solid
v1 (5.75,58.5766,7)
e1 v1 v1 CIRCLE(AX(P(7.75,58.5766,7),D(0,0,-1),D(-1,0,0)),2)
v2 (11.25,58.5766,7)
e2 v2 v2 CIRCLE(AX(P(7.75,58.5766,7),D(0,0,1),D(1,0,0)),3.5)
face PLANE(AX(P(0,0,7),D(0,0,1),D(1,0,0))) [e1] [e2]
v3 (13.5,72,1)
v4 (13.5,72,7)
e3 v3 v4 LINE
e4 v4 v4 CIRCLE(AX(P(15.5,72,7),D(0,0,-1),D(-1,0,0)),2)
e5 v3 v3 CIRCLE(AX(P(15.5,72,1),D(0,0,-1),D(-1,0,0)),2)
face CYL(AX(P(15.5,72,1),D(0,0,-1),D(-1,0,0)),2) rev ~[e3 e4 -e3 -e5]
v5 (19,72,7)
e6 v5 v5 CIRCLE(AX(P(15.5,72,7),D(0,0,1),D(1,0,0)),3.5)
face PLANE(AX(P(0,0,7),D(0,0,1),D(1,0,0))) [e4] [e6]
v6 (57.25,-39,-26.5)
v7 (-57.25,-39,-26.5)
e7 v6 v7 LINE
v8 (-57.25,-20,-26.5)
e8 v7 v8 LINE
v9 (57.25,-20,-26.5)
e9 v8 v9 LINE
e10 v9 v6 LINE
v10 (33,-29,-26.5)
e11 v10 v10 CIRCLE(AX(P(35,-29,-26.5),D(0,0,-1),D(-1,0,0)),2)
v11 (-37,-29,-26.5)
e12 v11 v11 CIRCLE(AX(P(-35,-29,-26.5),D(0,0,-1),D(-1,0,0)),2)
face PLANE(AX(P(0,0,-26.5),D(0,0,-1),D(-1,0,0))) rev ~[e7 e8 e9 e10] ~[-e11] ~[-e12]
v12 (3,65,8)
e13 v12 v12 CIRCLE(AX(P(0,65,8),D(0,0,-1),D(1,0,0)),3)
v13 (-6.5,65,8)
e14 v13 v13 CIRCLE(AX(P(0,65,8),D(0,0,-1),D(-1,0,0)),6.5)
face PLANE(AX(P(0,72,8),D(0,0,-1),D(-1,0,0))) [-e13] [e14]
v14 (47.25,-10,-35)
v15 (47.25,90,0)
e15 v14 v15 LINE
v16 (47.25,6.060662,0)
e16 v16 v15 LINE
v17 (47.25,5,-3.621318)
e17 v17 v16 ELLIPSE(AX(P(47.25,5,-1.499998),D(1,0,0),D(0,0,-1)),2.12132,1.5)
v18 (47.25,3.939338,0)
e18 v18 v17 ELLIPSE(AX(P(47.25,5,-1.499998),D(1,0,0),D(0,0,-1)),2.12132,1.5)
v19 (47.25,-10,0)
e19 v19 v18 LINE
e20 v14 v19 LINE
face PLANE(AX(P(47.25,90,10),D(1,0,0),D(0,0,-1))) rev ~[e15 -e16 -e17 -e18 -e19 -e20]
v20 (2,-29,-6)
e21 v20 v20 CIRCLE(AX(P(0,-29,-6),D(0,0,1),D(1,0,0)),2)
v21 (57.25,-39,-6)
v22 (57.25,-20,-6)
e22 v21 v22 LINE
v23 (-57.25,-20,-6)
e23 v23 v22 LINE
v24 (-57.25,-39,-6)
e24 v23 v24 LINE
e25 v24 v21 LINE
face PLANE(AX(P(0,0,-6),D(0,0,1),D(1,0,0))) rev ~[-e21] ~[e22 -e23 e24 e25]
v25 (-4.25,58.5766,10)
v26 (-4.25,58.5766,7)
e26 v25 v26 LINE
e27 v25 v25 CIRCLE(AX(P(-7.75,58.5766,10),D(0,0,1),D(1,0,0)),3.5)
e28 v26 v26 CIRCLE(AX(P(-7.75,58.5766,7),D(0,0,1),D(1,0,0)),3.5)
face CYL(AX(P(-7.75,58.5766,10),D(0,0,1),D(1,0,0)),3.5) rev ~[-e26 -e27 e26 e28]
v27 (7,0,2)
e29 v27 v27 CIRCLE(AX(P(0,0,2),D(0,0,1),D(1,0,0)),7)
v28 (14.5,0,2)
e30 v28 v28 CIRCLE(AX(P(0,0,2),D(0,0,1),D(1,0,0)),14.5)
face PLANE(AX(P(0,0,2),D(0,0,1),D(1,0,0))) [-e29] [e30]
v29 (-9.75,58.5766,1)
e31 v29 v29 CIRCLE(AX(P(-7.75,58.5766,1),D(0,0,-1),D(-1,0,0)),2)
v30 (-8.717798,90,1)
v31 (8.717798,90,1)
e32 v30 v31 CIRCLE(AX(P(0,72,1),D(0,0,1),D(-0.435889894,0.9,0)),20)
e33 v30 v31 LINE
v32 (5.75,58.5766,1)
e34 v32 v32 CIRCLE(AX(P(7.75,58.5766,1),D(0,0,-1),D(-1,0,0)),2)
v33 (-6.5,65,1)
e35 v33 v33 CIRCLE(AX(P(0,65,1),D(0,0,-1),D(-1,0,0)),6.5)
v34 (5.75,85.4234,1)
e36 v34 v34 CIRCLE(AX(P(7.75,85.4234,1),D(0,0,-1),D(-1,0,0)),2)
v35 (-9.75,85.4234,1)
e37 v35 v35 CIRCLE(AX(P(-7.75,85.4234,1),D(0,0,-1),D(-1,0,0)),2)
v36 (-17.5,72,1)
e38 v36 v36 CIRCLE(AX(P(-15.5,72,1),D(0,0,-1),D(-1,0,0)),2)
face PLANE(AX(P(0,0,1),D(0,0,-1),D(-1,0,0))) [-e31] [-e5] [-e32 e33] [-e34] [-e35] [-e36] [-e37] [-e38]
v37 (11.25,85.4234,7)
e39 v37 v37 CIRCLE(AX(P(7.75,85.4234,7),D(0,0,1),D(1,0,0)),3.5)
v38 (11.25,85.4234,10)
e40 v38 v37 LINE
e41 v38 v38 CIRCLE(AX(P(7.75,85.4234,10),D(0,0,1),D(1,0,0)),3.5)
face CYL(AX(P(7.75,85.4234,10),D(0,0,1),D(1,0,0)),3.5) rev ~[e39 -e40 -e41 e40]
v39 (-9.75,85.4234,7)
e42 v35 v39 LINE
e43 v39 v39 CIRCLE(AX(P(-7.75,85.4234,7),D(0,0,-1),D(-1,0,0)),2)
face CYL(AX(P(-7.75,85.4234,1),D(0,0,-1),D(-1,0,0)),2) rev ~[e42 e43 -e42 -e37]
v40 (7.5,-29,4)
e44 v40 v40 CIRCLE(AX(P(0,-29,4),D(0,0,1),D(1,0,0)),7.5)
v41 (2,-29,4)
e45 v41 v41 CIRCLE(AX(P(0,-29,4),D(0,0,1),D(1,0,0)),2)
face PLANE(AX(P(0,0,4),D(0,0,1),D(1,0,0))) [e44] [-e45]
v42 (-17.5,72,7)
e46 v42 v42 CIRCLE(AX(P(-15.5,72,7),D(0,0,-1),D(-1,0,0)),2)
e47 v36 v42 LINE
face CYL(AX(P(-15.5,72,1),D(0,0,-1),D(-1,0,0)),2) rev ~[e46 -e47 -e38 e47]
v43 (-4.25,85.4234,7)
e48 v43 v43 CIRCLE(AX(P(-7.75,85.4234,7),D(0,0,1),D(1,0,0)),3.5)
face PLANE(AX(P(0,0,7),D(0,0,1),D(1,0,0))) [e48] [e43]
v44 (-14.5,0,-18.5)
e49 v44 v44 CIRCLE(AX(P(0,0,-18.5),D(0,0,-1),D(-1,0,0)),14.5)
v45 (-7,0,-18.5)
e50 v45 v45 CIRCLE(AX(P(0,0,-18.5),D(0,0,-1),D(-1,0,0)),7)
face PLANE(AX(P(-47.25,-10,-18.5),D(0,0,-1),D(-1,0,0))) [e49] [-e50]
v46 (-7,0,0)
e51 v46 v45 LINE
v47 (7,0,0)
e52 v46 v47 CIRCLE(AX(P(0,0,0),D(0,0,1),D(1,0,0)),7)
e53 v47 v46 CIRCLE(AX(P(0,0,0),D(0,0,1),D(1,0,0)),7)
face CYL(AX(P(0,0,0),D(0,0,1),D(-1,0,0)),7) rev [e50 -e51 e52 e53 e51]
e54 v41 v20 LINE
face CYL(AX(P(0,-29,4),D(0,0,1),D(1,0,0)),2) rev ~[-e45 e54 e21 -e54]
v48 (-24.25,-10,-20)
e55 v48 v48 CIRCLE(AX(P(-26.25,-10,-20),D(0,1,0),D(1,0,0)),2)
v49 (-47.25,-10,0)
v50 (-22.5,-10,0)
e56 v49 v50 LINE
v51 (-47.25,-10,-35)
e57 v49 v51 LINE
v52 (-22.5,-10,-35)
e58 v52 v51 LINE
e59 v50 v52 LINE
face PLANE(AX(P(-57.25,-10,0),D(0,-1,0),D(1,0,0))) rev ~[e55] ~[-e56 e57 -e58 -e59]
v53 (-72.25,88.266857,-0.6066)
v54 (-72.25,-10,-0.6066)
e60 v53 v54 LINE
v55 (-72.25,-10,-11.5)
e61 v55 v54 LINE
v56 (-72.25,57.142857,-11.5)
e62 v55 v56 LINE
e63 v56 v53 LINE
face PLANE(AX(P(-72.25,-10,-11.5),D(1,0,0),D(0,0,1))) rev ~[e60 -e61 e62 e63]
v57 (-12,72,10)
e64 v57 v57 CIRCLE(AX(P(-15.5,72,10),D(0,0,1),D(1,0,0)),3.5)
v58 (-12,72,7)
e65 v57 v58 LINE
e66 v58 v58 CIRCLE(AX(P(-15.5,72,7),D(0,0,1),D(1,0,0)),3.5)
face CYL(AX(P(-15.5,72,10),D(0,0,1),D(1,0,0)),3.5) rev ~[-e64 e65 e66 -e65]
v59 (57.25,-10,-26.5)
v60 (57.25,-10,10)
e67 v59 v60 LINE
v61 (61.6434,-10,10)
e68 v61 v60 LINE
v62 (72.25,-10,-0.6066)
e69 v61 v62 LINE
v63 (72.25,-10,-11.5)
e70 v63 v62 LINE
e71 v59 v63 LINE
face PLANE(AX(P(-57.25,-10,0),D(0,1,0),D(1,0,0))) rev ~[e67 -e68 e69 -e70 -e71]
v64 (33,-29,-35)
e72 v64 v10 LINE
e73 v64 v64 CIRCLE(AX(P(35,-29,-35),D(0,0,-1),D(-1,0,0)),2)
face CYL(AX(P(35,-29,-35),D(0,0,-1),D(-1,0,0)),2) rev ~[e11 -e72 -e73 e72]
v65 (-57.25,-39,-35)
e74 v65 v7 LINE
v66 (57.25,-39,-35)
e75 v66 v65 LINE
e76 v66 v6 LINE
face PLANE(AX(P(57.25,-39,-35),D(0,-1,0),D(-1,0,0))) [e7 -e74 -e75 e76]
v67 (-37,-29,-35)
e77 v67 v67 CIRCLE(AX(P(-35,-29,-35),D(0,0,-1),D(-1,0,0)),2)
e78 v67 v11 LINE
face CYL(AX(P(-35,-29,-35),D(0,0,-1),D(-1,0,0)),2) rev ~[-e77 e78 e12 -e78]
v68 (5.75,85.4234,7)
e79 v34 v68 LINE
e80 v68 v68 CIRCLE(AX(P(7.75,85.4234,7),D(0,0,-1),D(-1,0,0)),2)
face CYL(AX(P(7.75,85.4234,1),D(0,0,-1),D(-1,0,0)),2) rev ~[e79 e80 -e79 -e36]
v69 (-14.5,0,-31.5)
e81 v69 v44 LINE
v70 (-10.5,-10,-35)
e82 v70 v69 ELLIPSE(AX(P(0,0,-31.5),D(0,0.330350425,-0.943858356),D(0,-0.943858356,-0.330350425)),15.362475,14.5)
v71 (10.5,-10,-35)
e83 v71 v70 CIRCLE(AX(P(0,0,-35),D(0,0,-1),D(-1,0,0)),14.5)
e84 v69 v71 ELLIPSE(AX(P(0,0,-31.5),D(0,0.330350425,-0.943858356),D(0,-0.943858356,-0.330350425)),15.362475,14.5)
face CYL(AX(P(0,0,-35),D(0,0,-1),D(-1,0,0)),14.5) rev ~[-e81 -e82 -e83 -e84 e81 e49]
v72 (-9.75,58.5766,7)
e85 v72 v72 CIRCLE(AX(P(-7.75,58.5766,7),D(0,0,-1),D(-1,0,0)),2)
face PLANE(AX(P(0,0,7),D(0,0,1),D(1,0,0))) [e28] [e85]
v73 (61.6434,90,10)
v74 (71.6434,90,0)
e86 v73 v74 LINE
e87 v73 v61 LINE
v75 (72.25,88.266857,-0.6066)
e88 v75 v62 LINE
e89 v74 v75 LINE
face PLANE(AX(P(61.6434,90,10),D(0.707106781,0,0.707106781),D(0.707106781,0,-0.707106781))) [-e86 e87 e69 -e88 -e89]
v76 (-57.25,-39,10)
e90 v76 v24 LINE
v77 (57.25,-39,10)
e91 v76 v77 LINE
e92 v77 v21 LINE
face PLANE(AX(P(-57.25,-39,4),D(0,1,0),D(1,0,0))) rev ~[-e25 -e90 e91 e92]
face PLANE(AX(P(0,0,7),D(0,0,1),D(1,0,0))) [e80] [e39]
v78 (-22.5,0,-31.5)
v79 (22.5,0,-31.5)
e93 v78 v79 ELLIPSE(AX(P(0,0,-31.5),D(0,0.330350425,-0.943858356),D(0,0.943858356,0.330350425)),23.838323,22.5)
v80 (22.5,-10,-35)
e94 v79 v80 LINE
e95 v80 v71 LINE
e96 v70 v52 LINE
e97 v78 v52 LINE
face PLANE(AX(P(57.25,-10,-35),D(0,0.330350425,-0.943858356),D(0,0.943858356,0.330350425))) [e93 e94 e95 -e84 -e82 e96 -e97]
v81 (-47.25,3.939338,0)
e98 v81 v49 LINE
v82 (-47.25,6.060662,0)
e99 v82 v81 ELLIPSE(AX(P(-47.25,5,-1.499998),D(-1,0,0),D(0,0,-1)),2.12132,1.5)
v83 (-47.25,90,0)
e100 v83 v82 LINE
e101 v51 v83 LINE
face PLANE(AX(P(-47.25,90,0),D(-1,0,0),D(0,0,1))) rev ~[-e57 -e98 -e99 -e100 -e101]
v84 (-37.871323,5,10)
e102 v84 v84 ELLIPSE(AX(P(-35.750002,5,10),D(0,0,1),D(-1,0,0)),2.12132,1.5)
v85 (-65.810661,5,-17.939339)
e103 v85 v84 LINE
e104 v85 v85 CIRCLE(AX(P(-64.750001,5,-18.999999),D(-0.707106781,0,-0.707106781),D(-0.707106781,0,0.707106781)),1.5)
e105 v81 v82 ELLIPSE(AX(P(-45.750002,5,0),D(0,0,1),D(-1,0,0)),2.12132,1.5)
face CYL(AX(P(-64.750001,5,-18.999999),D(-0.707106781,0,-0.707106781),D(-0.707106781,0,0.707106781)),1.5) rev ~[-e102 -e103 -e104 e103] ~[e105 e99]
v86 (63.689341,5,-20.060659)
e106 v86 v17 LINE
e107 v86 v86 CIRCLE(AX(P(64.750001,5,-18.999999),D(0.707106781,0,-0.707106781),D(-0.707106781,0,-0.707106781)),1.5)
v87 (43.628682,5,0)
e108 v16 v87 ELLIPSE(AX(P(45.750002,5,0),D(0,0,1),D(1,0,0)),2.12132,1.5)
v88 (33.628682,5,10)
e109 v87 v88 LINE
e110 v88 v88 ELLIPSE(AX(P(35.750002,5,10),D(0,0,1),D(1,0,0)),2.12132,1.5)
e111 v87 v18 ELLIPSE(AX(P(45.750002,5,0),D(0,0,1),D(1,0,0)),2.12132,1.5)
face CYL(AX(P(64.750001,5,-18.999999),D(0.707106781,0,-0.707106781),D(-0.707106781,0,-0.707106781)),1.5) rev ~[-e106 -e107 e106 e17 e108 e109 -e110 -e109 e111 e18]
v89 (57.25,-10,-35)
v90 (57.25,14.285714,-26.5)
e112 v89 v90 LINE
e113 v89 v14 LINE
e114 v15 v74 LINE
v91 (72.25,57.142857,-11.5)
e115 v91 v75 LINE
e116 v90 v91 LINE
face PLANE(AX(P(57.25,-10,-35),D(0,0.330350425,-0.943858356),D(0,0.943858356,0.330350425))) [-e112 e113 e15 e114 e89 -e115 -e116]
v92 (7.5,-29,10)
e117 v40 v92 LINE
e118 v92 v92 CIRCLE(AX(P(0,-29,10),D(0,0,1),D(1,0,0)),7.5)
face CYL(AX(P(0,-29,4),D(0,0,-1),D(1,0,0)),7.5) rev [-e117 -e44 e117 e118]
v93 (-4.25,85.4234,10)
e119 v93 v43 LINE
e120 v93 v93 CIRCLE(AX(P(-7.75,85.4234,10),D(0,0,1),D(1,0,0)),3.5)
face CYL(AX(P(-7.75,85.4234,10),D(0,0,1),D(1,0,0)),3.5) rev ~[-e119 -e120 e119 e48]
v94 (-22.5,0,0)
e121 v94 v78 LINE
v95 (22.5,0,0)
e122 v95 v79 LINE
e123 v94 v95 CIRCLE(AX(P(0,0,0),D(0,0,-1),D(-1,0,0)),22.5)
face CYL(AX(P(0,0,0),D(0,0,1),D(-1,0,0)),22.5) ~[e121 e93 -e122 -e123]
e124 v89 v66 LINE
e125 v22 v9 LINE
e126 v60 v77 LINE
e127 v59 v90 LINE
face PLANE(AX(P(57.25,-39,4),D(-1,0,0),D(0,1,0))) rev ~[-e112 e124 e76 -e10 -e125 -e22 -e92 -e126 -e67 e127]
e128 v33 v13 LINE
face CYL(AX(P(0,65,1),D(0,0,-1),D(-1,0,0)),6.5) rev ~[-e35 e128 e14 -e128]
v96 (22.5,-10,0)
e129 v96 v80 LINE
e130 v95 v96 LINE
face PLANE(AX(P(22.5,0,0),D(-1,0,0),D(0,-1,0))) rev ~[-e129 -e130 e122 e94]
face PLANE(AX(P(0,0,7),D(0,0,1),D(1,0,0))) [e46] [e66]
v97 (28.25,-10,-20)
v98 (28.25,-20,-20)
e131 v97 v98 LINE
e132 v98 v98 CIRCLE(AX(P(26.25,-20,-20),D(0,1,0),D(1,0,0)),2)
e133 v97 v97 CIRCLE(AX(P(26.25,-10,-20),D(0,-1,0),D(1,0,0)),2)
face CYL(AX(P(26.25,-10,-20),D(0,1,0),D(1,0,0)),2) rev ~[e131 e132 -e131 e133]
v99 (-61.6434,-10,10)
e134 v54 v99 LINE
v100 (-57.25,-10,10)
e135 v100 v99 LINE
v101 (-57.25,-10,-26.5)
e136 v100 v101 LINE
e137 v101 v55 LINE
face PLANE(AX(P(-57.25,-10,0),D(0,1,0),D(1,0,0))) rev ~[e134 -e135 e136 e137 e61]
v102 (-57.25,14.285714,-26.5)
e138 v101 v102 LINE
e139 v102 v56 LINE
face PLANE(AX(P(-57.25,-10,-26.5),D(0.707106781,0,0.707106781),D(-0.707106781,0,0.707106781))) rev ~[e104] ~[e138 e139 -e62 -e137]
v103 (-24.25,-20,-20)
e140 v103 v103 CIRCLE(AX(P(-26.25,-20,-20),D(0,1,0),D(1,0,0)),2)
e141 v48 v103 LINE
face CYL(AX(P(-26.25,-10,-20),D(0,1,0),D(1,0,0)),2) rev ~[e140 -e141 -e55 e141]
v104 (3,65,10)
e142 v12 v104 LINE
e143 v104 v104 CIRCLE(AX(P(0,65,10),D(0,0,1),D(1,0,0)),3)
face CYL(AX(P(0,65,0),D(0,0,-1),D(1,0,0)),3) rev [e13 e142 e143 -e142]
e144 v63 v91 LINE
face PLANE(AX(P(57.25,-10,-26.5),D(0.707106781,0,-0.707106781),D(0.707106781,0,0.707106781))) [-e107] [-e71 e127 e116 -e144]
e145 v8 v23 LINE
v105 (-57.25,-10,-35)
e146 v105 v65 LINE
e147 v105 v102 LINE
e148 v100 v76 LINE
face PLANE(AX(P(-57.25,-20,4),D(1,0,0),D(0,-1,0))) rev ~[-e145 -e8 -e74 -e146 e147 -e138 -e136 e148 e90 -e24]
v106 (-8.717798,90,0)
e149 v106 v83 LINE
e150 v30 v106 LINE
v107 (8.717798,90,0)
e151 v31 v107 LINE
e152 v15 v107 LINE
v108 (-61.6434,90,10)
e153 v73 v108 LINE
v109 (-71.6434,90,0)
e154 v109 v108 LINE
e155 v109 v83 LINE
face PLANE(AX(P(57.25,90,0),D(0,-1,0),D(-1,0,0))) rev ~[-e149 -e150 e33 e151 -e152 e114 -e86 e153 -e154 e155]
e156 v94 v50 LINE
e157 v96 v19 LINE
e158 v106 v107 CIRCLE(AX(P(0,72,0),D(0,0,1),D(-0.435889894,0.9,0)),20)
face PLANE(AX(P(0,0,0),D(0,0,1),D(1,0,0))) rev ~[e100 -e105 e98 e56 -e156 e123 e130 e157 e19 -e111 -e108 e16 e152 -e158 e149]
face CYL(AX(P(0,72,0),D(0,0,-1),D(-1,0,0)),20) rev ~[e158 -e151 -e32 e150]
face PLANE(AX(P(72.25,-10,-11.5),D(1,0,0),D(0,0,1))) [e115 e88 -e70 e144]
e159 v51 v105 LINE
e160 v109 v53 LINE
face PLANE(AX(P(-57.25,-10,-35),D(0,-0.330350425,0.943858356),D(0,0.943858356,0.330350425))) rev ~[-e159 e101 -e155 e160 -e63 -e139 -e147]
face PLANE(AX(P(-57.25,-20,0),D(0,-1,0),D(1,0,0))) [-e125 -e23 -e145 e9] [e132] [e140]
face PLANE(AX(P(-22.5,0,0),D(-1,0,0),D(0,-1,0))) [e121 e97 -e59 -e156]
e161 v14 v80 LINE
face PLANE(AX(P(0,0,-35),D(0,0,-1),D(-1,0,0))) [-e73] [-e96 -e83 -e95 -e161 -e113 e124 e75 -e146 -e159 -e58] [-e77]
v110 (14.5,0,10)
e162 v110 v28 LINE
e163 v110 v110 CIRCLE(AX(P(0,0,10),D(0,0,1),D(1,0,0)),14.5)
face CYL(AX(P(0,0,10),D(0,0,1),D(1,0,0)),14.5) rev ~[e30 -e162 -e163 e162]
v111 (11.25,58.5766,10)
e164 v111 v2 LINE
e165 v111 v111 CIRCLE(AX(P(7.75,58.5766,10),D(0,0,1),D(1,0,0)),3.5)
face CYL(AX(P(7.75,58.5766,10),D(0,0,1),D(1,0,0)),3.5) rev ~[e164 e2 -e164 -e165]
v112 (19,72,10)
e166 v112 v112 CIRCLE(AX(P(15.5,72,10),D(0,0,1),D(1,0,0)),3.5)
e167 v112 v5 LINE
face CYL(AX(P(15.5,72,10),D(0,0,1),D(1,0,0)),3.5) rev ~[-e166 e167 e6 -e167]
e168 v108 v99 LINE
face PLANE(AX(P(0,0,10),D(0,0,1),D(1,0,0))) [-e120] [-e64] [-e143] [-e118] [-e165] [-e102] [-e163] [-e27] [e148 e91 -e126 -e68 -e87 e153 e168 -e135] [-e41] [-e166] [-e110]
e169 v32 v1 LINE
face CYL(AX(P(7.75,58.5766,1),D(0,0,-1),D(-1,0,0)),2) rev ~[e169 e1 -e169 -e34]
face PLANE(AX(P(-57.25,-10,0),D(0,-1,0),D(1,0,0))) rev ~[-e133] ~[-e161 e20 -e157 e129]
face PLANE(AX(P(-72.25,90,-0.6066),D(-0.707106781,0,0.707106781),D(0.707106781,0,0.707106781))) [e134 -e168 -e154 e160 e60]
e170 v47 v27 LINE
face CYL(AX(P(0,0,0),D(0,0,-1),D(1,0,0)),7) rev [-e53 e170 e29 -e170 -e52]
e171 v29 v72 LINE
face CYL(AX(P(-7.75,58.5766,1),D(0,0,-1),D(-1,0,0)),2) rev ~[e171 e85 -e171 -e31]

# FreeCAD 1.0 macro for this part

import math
import FreeCAD as App
import Part
import Sketcher
from FreeCAD import Vector
Q = App.Units.Quantity

doc = App.newDocument("Part")
body = doc.addObject("PartDesign::Body", "Body")

# Sketch on XY plane
sketch1 = doc.addObject("Sketcher::SketchObject", "Sketch")
body.addObject(sketch1)
sketch1.AttachmentSupport = (doc.XY_Plane, [""])
sketch1.MapMode = "FlatFace"
sketch1.addGeometry([
    Part.LineSegment(Vector(-57.2, 90, 0), Vector(-57.2, -10, 0)),  # 0
    Part.LineSegment(Vector(-57.2, -10, 0), Vector(57.2, -10, 0)),  # 1
    Part.LineSegment(Vector(57.2, -10, 0), Vector(57.2, 90, 0)),  # 2
    Part.LineSegment(Vector(57.2, 90, 0), Vector(-57.2, 90, 0)),  # 3
    Part.Circle(Vector(0, 0, 0), Vector(0, 0, 1), 7),  # 4
    Part.Circle(Vector(0, 65, 0), Vector(0, 0, 1), 3),  # 5
], False)
sketch1.addConstraint([
    Sketcher.Constraint("Coincident", 0, 2, 1, 1),
    Sketcher.Constraint("Coincident", 1, 2, 2, 1),
    Sketcher.Constraint("Coincident", 2, 2, 3, 1),
    Sketcher.Constraint("Coincident", 3, 2, 0, 1),
    Sketcher.Constraint("Vertical", 0),
    Sketcher.Constraint("Horizontal", 1),
    Sketcher.Constraint("Vertical", 2),
    Sketcher.Constraint("Horizontal", 3),
    Sketcher.Constraint("Coincident", 4, 3, -1, 1),
    Sketcher.Constraint("PointOnObject", 5, 3, -2),
    Sketcher.Constraint("Diameter", 4, Q("14 mm")),
    Sketcher.Constraint("Diameter", 5, Q("6 mm")),
    Sketcher.Constraint("DistanceX", 1, 1, 1, 2, Q("114.5 mm")),
    Sketcher.Constraint("DistanceY", -1, 1, 5, 3, Q("65 mm")),
    Sketcher.Constraint("DistanceY", 0, 2, -1, 1, Q("10 mm")),
    Sketcher.Constraint("DistanceY", 5, 3, 2, 2, Q("25 mm")),
    Sketcher.Constraint("DistanceX", 0, 2, -1, 1, Q("57.25 mm")),
])
pad1 = doc.addObject("PartDesign::Pad", "Pad")
body.addObject(pad1)
pad1.Profile = sketch1
pad1.Length = 10

# Sketch on XZ plane
sketch2 = doc.addObject("Sketcher::SketchObject", "Sketch001")
body.addObject(sketch2)
sketch2.AttachmentSupport = (doc.XZ_Plane, [""])
sketch2.MapMode = "FlatFace"
sketch2.AttachmentOffset = App.Placement(Vector(0, 0, 10), App.Rotation())
sketch2.addGeometry([
    Part.LineSegment(Vector(57, 10, 0), Vector(-57, 10, 0)),
    Part.LineSegment(Vector(-57, 10, 0), Vector(-57, -35, 0)),
    Part.LineSegment(Vector(-57, -35, 0), Vector(57, -35, 0)),
    Part.LineSegment(Vector(57, -35, 0), Vector(57, 10, 0)),
], False)
sketch2.addConstraint([
    Sketcher.Constraint("Coincident", 0, 2, 1, 1),
    Sketcher.Constraint("Coincident", 1, 2, 2, 1),
    Sketcher.Constraint("Coincident", 2, 2, 3, 1),
    Sketcher.Constraint("Coincident", 3, 2, 0, 1),
    Sketcher.Constraint("Horizontal", 0),
    Sketcher.Constraint("Vertical", 1),
    Sketcher.Constraint("Horizontal", 2),
    Sketcher.Constraint("Vertical", 3),
    Sketcher.Constraint("DistanceY", 1, 2, 1, 1, Q("45 mm")),
    Sketcher.Constraint("DistanceX", 0, 2, 0, 1, Q("114.5 mm")),
    Sketcher.Constraint("DistanceY", -1, 1, 0, 2, Q("10 mm")),
    Sketcher.Constraint("DistanceX", 0, 2, -1, 1, Q("57.25 mm")),
])
pad2 = doc.addObject("PartDesign::Pad", "Pad001")
body.addObject(pad2)
pad2.Profile = sketch2
pad2.Length = 10

# Sketch on XY plane
sketch3 = doc.addObject("Sketcher::SketchObject", "Sketch002")
body.addObject(sketch3)
sketch3.AttachmentSupport = (doc.XY_Plane, [""])
sketch3.MapMode = "FlatFace"
sketch3.addGeometry([
    Part.ArcOfCircle(Part.Circle(Vector(0, 0, 0), Vector(0, 0, 1), 22), math.radians(0), math.radians(180)),  # 0
    Part.LineSegment(Vector(22, 0, 0), Vector(22, -10, 0)),  # 1
    Part.LineSegment(Vector(22, -10, 0), Vector(-22, -10, 0)),  # 2
    Part.LineSegment(Vector(-22, -10, 0), Vector(-22, 0, 0)),  # 3
    Part.Circle(Vector(0, 0, 0), Vector(0, 0, 1), 7),  # 4
], False)
sketch3.addConstraint([
    Sketcher.Constraint("Tangent", 0, 1, 1, 1),
    Sketcher.Constraint("Coincident", 1, 2, 2, 1),
    Sketcher.Constraint("Coincident", 2, 2, 3, 1),
    Sketcher.Constraint("Tangent", 3, 2, 0, 2),
    Sketcher.Constraint("Vertical", 1),
    Sketcher.Constraint("Horizontal", 2),
    Sketcher.Constraint("Vertical", 3),
    Sketcher.Constraint("Coincident", 0, 3, -1, 1),
    Sketcher.Constraint("Coincident", 4, 3, -1, 1),
    Sketcher.Constraint("Radius", 0, Q("22.5 mm")),
    Sketcher.Constraint("Diameter", 4, Q("14 mm")),
    Sketcher.Constraint("DistanceY", 1, 2, 1, 1, Q("10 mm")),
])
pad3 = doc.addObject("PartDesign::Pad", "Pad002")
body.addObject(pad3)
pad3.Profile = sketch3
pad3.Length = 35
pad3.Reversed = True

# Sketch on YZ plane
sketch4 = doc.addObject("Sketcher::SketchObject", "Sketch003")
body.addObject(sketch4)
sketch4.AttachmentSupport = (doc.YZ_Plane, [""])
sketch4.MapMode = "FlatFace"
sketch4.AttachmentOffset = App.Placement(Vector(0, 0, -57.25), App.Rotation())
sketch4.addGeometry([
    Part.LineSegment(Vector(90, 0, 0), Vector(-10, -35, 0)),  # 0
    Part.LineSegment(Vector(-10, -35, 0), Vector(-20, -35, 0)),  # 1
    Part.LineSegment(Vector(-20, -35, 0), Vector(-20, 10, 0)),  # 2
    Part.LineSegment(Vector(-20, 10, 0), Vector(90, 10, 0)),  # 3
    Part.LineSegment(Vector(90, 10, 0), Vector(90, 0, 0)),  # 4
], False)
sketch4.addConstraint([
    Sketcher.Constraint("Coincident", 0, 2, 1, 1),
    Sketcher.Constraint("Coincident", 1, 2, 2, 1),
    Sketcher.Constraint("Coincident", 2, 2, 3, 1),
    Sketcher.Constraint("Coincident", 3, 2, 4, 1),
    Sketcher.Constraint("Coincident", 4, 2, 0, 1),
    Sketcher.Constraint("Horizontal", 1),
    Sketcher.Constraint("Vertical", 2),
    Sketcher.Constraint("Horizontal", 3),
    Sketcher.Constraint("Vertical", 4),
    Sketcher.Constraint("PointOnObject", 4, 2, -1),
    Sketcher.Constraint("Equal", 1, 4),
    Sketcher.Constraint("DistanceX", 1, 2, 1, 1, Q("10 mm")),
    Sketcher.Constraint("DistanceX", 3, 1, 3, 2, Q("110 mm")),
    Sketcher.Constraint("DistanceY", 2, 1, 2, 2, Q("45 mm")),
    Sketcher.Constraint("DistanceX", 0, 2, -1, 1, Q("10 mm")),
])
pad4 = doc.addObject("PartDesign::Pad", "Pad003")
body.addObject(pad4)
pad4.Profile = sketch4
pad4.Length = 10

# Sketch on YZ plane
sketch5 = doc.addObject("Sketcher::SketchObject", "Sketch004")
body.addObject(sketch5)
sketch5.AttachmentSupport = (doc.YZ_Plane, [""])
sketch5.MapMode = "FlatFace"
sketch5.AttachmentOffset = App.Placement(Vector(0, 0, 57.25), App.Rotation())
sketch5.addGeometry([
    Part.LineSegment(Vector(-10, 0, 0), Vector(-10, -35, 0)),
    Part.LineSegment(Vector(-10, -35, 0), Vector(90, 0, 0)),
    Part.LineSegment(Vector(90, 0, 0), Vector(-10, 0, 0)),
], False)
sketch5.addConstraint([
    Sketcher.Constraint("Coincident", 0, 2, 1, 1),
    Sketcher.Constraint("Coincident", 1, 2, 2, 1),
    Sketcher.Constraint("Coincident", 2, 2, 0, 1),
    Sketcher.Constraint("Vertical", 0),
    Sketcher.Constraint("Horizontal", 2),
    Sketcher.Constraint("PointOnObject", 1, 2, -1),
    Sketcher.Constraint("DistanceX", 2, 2, 2, 1, Q("100 mm")),
    Sketcher.Constraint("DistanceY", 0, 2, 0, 1, Q("35 mm")),
    Sketcher.Constraint("DistanceX", 0, 2, -1, 1, Q("10 mm")),
])
pad5 = doc.addObject("PartDesign::Pad", "Pad004")
body.addObject(pad5)
pad5.Profile = sketch5
pad5.Length = 10
pad5.Reversed = True

# Sketch on XY plane
sketch6 = doc.addObject("Sketcher::SketchObject", "Sketch005")
body.addObject(sketch6)
sketch6.AttachmentSupport = (doc.XY_Plane, [""])
sketch6.MapMode = "FlatFace"
sketch6.addGeometry(Part.Circle(Vector(0, 72, 0), Vector(0, 0, 1), 20), False)
sketch6.addConstraint([
    Sketcher.Constraint("PointOnObject", 0, 3, -2),
    Sketcher.Constraint("Diameter", 0, Q("40 mm")),
    Sketcher.Constraint("DistanceY", -1, 1, 0, 3, Q("72 mm")),
])
pocket1 = doc.addObject("PartDesign::Pocket", "Pocket")
body.addObject(pocket1)
pocket1.Profile = sketch6
pocket1.Length = 1
pocket1.Reversed = True

# Sketch on XZ plane
sketch7 = doc.addObject("Sketcher::SketchObject", "Sketch006")
body.addObject(sketch7)
sketch7.AttachmentSupport = (doc.XZ_Plane, [""])
sketch7.MapMode = "FlatFace"
sketch7.AttachmentOffset = App.Placement(Vector(0, 0, 10), App.Rotation())
sketch7.addGeometry([
    Part.Circle(Vector(26.2, -20, 0), Vector(0, 0, 1), 2),
    Part.Circle(Vector(-26.2, -20, 0), Vector(0, 0, 1), 2),
], False)
sketch7.addConstraint([
    Sketcher.Constraint("Equal", 0, 1),
    Sketcher.Constraint("Symmetric", 0, 3, 1, 3, -2),
    Sketcher.Constraint("Diameter", 0, Q("4 mm")),
    Sketcher.Constraint("DistanceX", 1, 3, 0, 3, Q("52.5 mm")),
    Sketcher.Constraint("DistanceY", 0, 3, -1, 1, Q("20 mm")),
])
pocket2 = doc.addObject("PartDesign::Pocket", "Pocket001")
body.addObject(pocket2)
pocket2.Profile = sketch7
pocket2.Type = "ThroughAll"
pocket2.Reversed = True

# Sketch on XY plane
sketch8 = doc.addObject("Sketcher::SketchObject", "Sketch007")
body.addObject(sketch8)
sketch8.AttachmentSupport = (doc.XY_Plane, [""])
sketch8.MapMode = "FlatFace"
sketch8.AttachmentOffset = App.Placement(Vector(0, 0, -35), App.Rotation())
sketch8.addGeometry([
    Part.LineSegment(Vector(-57, -39, 0), Vector(-57, -20, 0)),
    Part.LineSegment(Vector(-57, -20, 0), Vector(57, -20, 0)),
    Part.LineSegment(Vector(57, -20, 0), Vector(57, -39, 0)),
    Part.LineSegment(Vector(57, -39, 0), Vector(-57, -39, 0)),
], False)
sketch8.addConstraint([
    Sketcher.Constraint("Coincident", 0, 2, 1, 1),
    Sketcher.Constraint("Coincident", 1, 2, 2, 1),
    Sketcher.Constraint("Coincident", 2, 2, 3, 1),
    Sketcher.Constraint("Coincident", 3, 2, 0, 1),
    Sketcher.Constraint("Vertical", 0),
    Sketcher.Constraint("Horizontal", 1),
    Sketcher.Constraint("Vertical", 2),
    Sketcher.Constraint("Horizontal", 3),
    Sketcher.Constraint("DistanceY", 0, 1, 0, 2, Q("19 mm")),
    Sketcher.Constraint("DistanceX", 1, 1, 1, 2, Q("114.5 mm")),
    Sketcher.Constraint("DistanceY", 0, 2, -1, 1, Q("20 mm")),
    Sketcher.Constraint("DistanceX", 0, 2, -1, 1, Q("57.25 mm")),
])
pad6 = doc.addObject("PartDesign::Pad", "Pad005")
body.addObject(pad6)
pad6.Profile = sketch8
pad6.Length = 8.5

# Sketch on XY plane
sketch9 = doc.addObject("Sketcher::SketchObject", "Sketch008")
body.addObject(sketch9)
sketch9.AttachmentSupport = (doc.XY_Plane, [""])
sketch9.MapMode = "FlatFace"
sketch9.AttachmentOffset = App.Placement(Vector(0, 0, -35), App.Rotation())
sketch9.addGeometry([
    Part.Circle(Vector(35, -29, 0), Vector(0, 0, 1), 2),
    Part.Circle(Vector(-35, -29, 0), Vector(0, 0, 1), 2),
], False)
sketch9.addConstraint([
    Sketcher.Constraint("Equal", 0, 1),
    Sketcher.Constraint("Symmetric", 0, 3, 1, 3, -2),
    Sketcher.Constraint("Diameter", 0, Q("4 mm")),
    Sketcher.Constraint("DistanceX", 1, 3, 0, 3, Q("70 mm")),
    Sketcher.Constraint("DistanceY", 0, 3, -1, 1, Q("29 mm")),
])
pocket3 = doc.addObject("PartDesign::Pocket", "Pocket002")
body.addObject(pocket3)
pocket3.Profile = sketch9
pocket3.Type = "ThroughAll"
pocket3.Reversed = True

# Sketch on XY plane
sketch10 = doc.addObject("Sketcher::SketchObject", "Sketch009")
body.addObject(sketch10)
sketch10.AttachmentSupport = (doc.XY_Plane, [""])
sketch10.MapMode = "FlatFace"
sketch10.AttachmentOffset = App.Placement(Vector(0, 0, -6), App.Rotation())
sketch10.addGeometry([
    Part.LineSegment(Vector(57, -20, 0), Vector(-57, -20, 0)),
    Part.LineSegment(Vector(-57, -20, 0), Vector(-57, -39, 0)),
    Part.LineSegment(Vector(-57, -39, 0), Vector(57, -39, 0)),
    Part.LineSegment(Vector(57, -39, 0), Vector(57, -20, 0)),
], False)
sketch10.addConstraint([
    Sketcher.Constraint("Coincident", 0, 2, 1, 1),
    Sketcher.Constraint("Coincident", 1, 2, 2, 1),
    Sketcher.Constraint("Coincident", 2, 2, 3, 1),
    Sketcher.Constraint("Coincident", 3, 2, 0, 1),
    Sketcher.Constraint("Horizontal", 0),
    Sketcher.Constraint("Vertical", 1),
    Sketcher.Constraint("Horizontal", 2),
    Sketcher.Constraint("Vertical", 3),
    Sketcher.Constraint("DistanceY", 1, 2, 1, 1, Q("19 mm")),
    Sketcher.Constraint("DistanceX", 0, 2, 0, 1, Q("114.5 mm")),
    Sketcher.Constraint("DistanceY", 0, 2, -1, 1, Q("20 mm")),
    Sketcher.Constraint("DistanceX", 0, 2, -1, 1, Q("57.25 mm")),
])
pad7 = doc.addObject("PartDesign::Pad", "Pad006")
body.addObject(pad7)
pad7.Profile = sketch10
pad7.Length = 10

# Sketch on XY plane
sketch11 = doc.addObject("Sketcher::SketchObject", "Sketch010")
body.addObject(sketch11)
sketch11.AttachmentSupport = (doc.XY_Plane, [""])
sketch11.MapMode = "FlatFace"
sketch11.AttachmentOffset = App.Placement(Vector(0, 0, 4), App.Rotation())
sketch11.addGeometry(Part.Circle(Vector(0, -29, 0), Vector(0, 0, 1), 2), False)
sketch11.addConstraint([
    Sketcher.Constraint("PointOnObject", 0, 3, -2),
    Sketcher.Constraint("Diameter", 0, Q("4 mm")),
    Sketcher.Constraint("DistanceY", 0, 3, -1, 1, Q("29 mm")),
])
pocket4 = doc.addObject("PartDesign::Pocket", "Pocket003")
body.addObject(pocket4)
pocket4.Profile = sketch11
pocket4.Length = 10

# Sketch on XY plane
sketch12 = doc.addObject("Sketcher::SketchObject", "Sketch011")
body.addObject(sketch12)
sketch12.AttachmentSupport = (doc.XY_Plane, [""])
sketch12.MapMode = "FlatFace"
sketch12.AttachmentOffset = App.Placement(Vector(0, 0, 4), App.Rotation())
sketch12.addGeometry([
    Part.LineSegment(Vector(57, -20, 0), Vector(-57, -20, 0)),  # 0
    Part.LineSegment(Vector(-57, -20, 0), Vector(-57, -39, 0)),  # 1
    Part.LineSegment(Vector(-57, -39, 0), Vector(57, -39, 0)),  # 2
    Part.LineSegment(Vector(57, -39, 0), Vector(57, -20, 0)),  # 3
    Part.Circle(Vector(0, -29, 0), Vector(0, 0, 1), 8),  # 4
], False)
sketch12.addConstraint([
    Sketcher.Constraint("Coincident", 0, 2, 1, 1),
    Sketcher.Constraint("Coincident", 1, 2, 2, 1),
    Sketcher.Constraint("Coincident", 2, 2, 3, 1),
    Sketcher.Constraint("Coincident", 3, 2, 0, 1),
    Sketcher.Constraint("Horizontal", 0),
    Sketcher.Constraint("Vertical", 1),
    Sketcher.Constraint("Horizontal", 2),
    Sketcher.Constraint("Vertical", 3),
    Sketcher.Constraint("PointOnObject", 4, 3, -2),
    Sketcher.Constraint("Diameter", 4, Q("15 mm")),
    Sketcher.Constraint("DistanceY", 1, 2, 1, 1, Q("19 mm")),
    Sketcher.Constraint("DistanceX", 0, 2, 0, 1, Q("114.5 mm")),
    Sketcher.Constraint("DistanceY", 4, 3, -1, 1, Q("29 mm")),
    Sketcher.Constraint("DistanceY", 0, 2, -1, 1, Q("20 mm")),
    Sketcher.Constraint("DistanceX", 0, 2, -1, 1, Q("57.25 mm")),
])
pad8 = doc.addObject("PartDesign::Pad", "Pad007")
body.addObject(pad8)
pad8.Profile = sketch12
pad8.Length = 6

# Sketch on XZ plane
sketch13 = doc.addObject("Sketcher::SketchObject", "Sketch012")
body.addObject(sketch13)
sketch13.AttachmentSupport = (doc.XZ_Plane, [""])
sketch13.MapMode = "FlatFace"
sketch13.AttachmentOffset = App.Placement(Vector(0, 0, 10), App.Rotation())
sketch13.addGeometry([
    Part.LineSegment(Vector(57, -26, 0), Vector(57, 10, 0)),  # 0
    Part.LineSegment(Vector(57, 10, 0), Vector(72, 10, 0)),  # 1
    Part.LineSegment(Vector(72, 10, 0), Vector(72, -12, 0)),  # 2
    Part.LineSegment(Vector(72, -12, 0), Vector(57, -26, 0)),  # 3
    Part.LineSegment(Vector(-57, 10, 0), Vector(-57, -26, 0)),  # 4
    Part.LineSegment(Vector(-57, -26, 0), Vector(-72, -12, 0)),  # 5
    Part.LineSegment(Vector(-72, -12, 0), Vector(-72, 10, 0)),  # 6
    Part.LineSegment(Vector(-72, 10, 0), Vector(-57, 10, 0)),  # 7
], False)
sketch13.addConstraint([
    Sketcher.Constraint("Coincident", 0, 2, 1, 1),
    Sketcher.Constraint("Coincident", 1, 2, 2, 1),
    Sketcher.Constraint("Coincident", 2, 2, 3, 1),
    Sketcher.Constraint("Coincident", 3, 2, 0, 1),
    Sketcher.Constraint("Coincident", 4, 2, 5, 1),
    Sketcher.Constraint("Coincident", 5, 2, 6, 1),
    Sketcher.Constraint("Coincident", 6, 2, 7, 1),
    Sketcher.Constraint("Coincident", 7, 2, 4, 1),
    Sketcher.Constraint("Vertical", 0),
    Sketcher.Constraint("Horizontal", 1),
    Sketcher.Constraint("Vertical", 2),
    Sketcher.Constraint("Vertical", 4),
    Sketcher.Constraint("Vertical", 6),
    Sketcher.Constraint("Horizontal", 7),
    Sketcher.Constraint("Symmetric", 3, 2, 4, 2, -2),
    Sketcher.Constraint("Symmetric", 2, 2, 5, 2, -2),
    Sketcher.Constraint("Perpendicular", 3, 5),
    Sketcher.Constraint("Horizontal", 1, 2, 6, 2),
    Sketcher.Constraint("DistanceX", 1, 1, 1, 2, Q("15 mm")),
    Sketcher.Constraint("DistanceY", 0, 1, 0, 2, Q("36.5 mm")),
    Sketcher.Constraint("DistanceY", -1, 1, 0, 2, Q("10 mm")),
    Sketcher.Constraint("DistanceX", 4, 2, 3, 2, Q("114.5 mm")),
])
pad9 = doc.addObject("PartDesign::Pad", "Pad008")
body.addObject(pad9)
pad9.Profile = sketch13
pad9.Length = 100
pad9.Reversed = True

# Sketch on YZ plane
sketch14 = doc.addObject("Sketcher::SketchObject", "Sketch013")
body.addObject(sketch14)
sketch14.AttachmentSupport = (doc.YZ_Plane, [""])
sketch14.MapMode = "FlatFace"
sketch14.AttachmentOffset = App.Placement(Vector(0, 0, 57.25), App.Rotation())
sketch14.addGeometry([
    Part.LineSegment(Vector(90, -35, 0), Vector(-10, -35, 0)),
    Part.LineSegment(Vector(-10, -35, 0), Vector(90, 0, 0)),
    Part.LineSegment(Vector(90, 0, 0), Vector(90, -35, 0)),
], False)
sketch14.addConstraint([
    Sketcher.Constraint("Coincident", 0, 2, 1, 1),
    Sketcher.Constraint("Coincident", 1, 2, 2, 1),
    Sketcher.Constraint("Coincident", 2, 2, 0, 1),
    Sketcher.Constraint("Horizontal", 0),
    Sketcher.Constraint("Vertical", 2),
    Sketcher.Constraint("PointOnObject", 1, 2, -1),
    Sketcher.Constraint("DistanceX", 0, 2, 0, 1, Q("100 mm")),
    Sketcher.Constraint("DistanceY", 2, 2, 2, 1, Q("35 mm")),
    Sketcher.Constraint("DistanceX", 0, 2, -1, 1, Q("10 mm")),
])
pocket5 = doc.addObject("PartDesign::Pocket", "Pocket004")
body.addObject(pocket5)
pocket5.Profile = sketch14
pocket5.Type = "ThroughAll"
pocket5.Midplane = True

# Sketch on an angled plane
sketch15 = doc.addObject("Sketcher::SketchObject", "Sketch014")
body.addObject(sketch15)
sketch15.Placement = App.Placement(Vector(-72.25, -10, -11.5), App.Rotation(Vector(-0.707106781, 0, 0.707106781), Vector(0, 0.999999999, 0), Vector(-0.707106781, 0, -0.707106781), "ZXY"))
sketch15.addGeometry(Part.Circle(Vector(-10.6, 15, 0), Vector(0, 0, 1), 1.5), False)
sketch15.addConstraint([
    Sketcher.Constraint("Diameter", 0, Q("3 mm")),
    Sketcher.Constraint("DistanceY", -1, 1, 0, 3, Q("15 mm")),
    Sketcher.Constraint("DistanceX", 0, 3, -1, 1, Q("10.6066 mm")),
])
pocket6 = doc.addObject("PartDesign::Pocket", "Pocket005")
body.addObject(pocket6)
pocket6.Profile = sketch15
pocket6.Type = "ThroughAll"

# Sketch on an angled plane
sketch16 = doc.addObject("Sketcher::SketchObject", "Sketch015")
body.addObject(sketch16)
sketch16.Placement = App.Placement(Vector(72.25, -10, -11.5), App.Rotation(Vector(-0.707106781, 0, -0.707106781), Vector(0, 0.999999999, 0), Vector(0.707106781, 0, -0.707106781), "ZXY"))
sketch16.addGeometry(Part.Circle(Vector(10.6, 15, 0), Vector(0, 0, 1), 1.5), False)
sketch16.addConstraint([
    Sketcher.Constraint("Diameter", 0, Q("3 mm")),
    Sketcher.Constraint("DistanceY", -1, 1, 0, 3, Q("15 mm")),
    Sketcher.Constraint("DistanceX", -1, 1, 0, 3, Q("10.6066 mm")),
])
pocket7 = doc.addObject("PartDesign::Pocket", "Pocket006")
body.addObject(pocket7)
pocket7.Profile = sketch16
pocket7.Type = "ThroughAll"

# Sketch on XZ plane
sketch17 = doc.addObject("Sketcher::SketchObject", "Sketch016")
body.addObject(sketch17)
sketch17.AttachmentSupport = (doc.XZ_Plane, [""])
sketch17.MapMode = "FlatFace"
sketch17.AttachmentOffset = App.Placement(Vector(0, 0, -90), App.Rotation())
sketch17.addGeometry([
    Part.LineSegment(Vector(-72, -1, 0), Vector(-72, 10, 0)),  # 0
    Part.LineSegment(Vector(-72, 10, 0), Vector(-62, 10, 0)),  # 1
    Part.LineSegment(Vector(-62, 10, 0), Vector(-72, -1, 0)),  # 2
    Part.LineSegment(Vector(72, -1, 0), Vector(62, 10, 0)),  # 3
    Part.LineSegment(Vector(62, 10, 0), Vector(72, 10, 0)),  # 4
    Part.LineSegment(Vector(72, 10, 0), Vector(72, -1, 0)),  # 5
], False)
sketch17.addConstraint([
    Sketcher.Constraint("Coincident", 0, 2, 1, 1),
    Sketcher.Constraint("Coincident", 1, 2, 2, 1),
    Sketcher.Constraint("Coincident", 2, 2, 0, 1),
    Sketcher.Constraint("Coincident", 3, 2, 4, 1),
    Sketcher.Constraint("Coincident", 4, 2, 5, 1),
    Sketcher.Constraint("Coincident", 5, 2, 3, 1),
    Sketcher.Constraint("Vertical", 0),
    Sketcher.Constraint("Horizontal", 1),
    Sketcher.Constraint("Horizontal", 4),
    Sketcher.Constraint("Vertical", 5),
    Sketcher.Constraint("Symmetric", 1, 2, 3, 2, -2),
    Sketcher.Constraint("Symmetric", 2, 2, 5, 2, -2),
    Sketcher.Constraint("Perpendicular", 2, 3),
    Sketcher.Constraint("Distance", 2, Q("15 mm")),
    Sketcher.Constraint("DistanceY", -1, 1, 0, 2, Q("10 mm")),
    Sketcher.Constraint("DistanceX", 0, 2, 4, 2, Q("144.5 mm")),
])
pocket8 = doc.addObject("PartDesign::Pocket", "Pocket007")
body.addObject(pocket8)
pocket8.Profile = sketch17
pocket8.Type = "ThroughAll"
pocket8.Reversed = True

# Sketch on XY plane
sketch18 = doc.addObject("Sketcher::SketchObject", "Sketch017")
body.addObject(sketch18)
sketch18.AttachmentSupport = (doc.XY_Plane, [""])
sketch18.MapMode = "FlatFace"
sketch18.AttachmentOffset = App.Placement(Vector(0, 0, 10), App.Rotation())
sketch18.addGeometry([
    Part.Circle(Vector(0, 0, 0), Vector(0, 0, 1), 14),
    Part.Circle(Vector(0, 0, 0), Vector(0, 0, 1), 7),
], False)
sketch18.addConstraint([
    Sketcher.Constraint("Coincident", 0, 3, -1, 1),
    Sketcher.Constraint("Coincident", 1, 3, -1, 1),
    Sketcher.Constraint("Diameter", 0, Q("29 mm")),
    Sketcher.Constraint("Diameter", 1, Q("14 mm")),
])
pocket9 = doc.addObject("PartDesign::Pocket", "Pocket008")
body.addObject(pocket9)
pocket9.Profile = sketch18
pocket9.Length = 8

# Sketch on XY plane
sketch19 = doc.addObject("Sketcher::SketchObject", "Sketch018")
body.addObject(sketch19)
sketch19.AttachmentSupport = (doc.XY_Plane, [""])
sketch19.MapMode = "FlatFace"
sketch19.AttachmentOffset = App.Placement(Vector(0, 0, -35), App.Rotation())
sketch19.addGeometry([
    Part.Circle(Vector(0, 0, 0), Vector(0, 0, 1), 14),
    Part.Circle(Vector(0, 0, 0), Vector(0, 0, 1), 7),
], False)
sketch19.addConstraint([
    Sketcher.Constraint("Coincident", 0, 3, -1, 1),
    Sketcher.Constraint("Coincident", 1, 3, -1, 1),
    Sketcher.Constraint("Diameter", 0, Q("29 mm")),
    Sketcher.Constraint("Diameter", 1, Q("14 mm")),
])
pocket10 = doc.addObject("PartDesign::Pocket", "Pocket009")
body.addObject(pocket10)
pocket10.Profile = sketch19
pocket10.Length = 16.5
pocket10.Reversed = True

# Sketch on XY plane
sketch20 = doc.addObject("Sketcher::SketchObject", "Sketch019")
body.addObject(sketch20)
sketch20.AttachmentSupport = (doc.XY_Plane, [""])
sketch20.MapMode = "FlatFace"
sketch20.AttachmentOffset = App.Placement(Vector(0, 0, 1), App.Rotation())
sketch20.addGeometry([
    Part.Circle(Vector(0, 65, 0), Vector(0, 0, 1), 6.5),
    Part.Circle(Vector(0, 65, 0), Vector(0, 0, 1), 3),
], False)
sketch20.addConstraint([
    Sketcher.Constraint("Coincident", 1, 3, 0, 3),
    Sketcher.Constraint("PointOnObject", 0, 3, -2),
    Sketcher.Constraint("Diameter", 0, Q("13 mm")),
    Sketcher.Constraint("Diameter", 1, Q("6 mm")),
    Sketcher.Constraint("DistanceY", -1, 1, 0, 3, Q("65 mm")),
])
pocket11 = doc.addObject("PartDesign::Pocket", "Pocket010")
body.addObject(pocket11)
pocket11.Profile = sketch20
pocket11.Length = 7
pocket11.Reversed = True

# Sketch on XY plane
sketch21 = doc.addObject("Sketcher::SketchObject", "Sketch020")
body.addObject(sketch21)
sketch21.AttachmentSupport = (doc.XY_Plane, [""])
sketch21.MapMode = "FlatFace"
sketch21.AttachmentOffset = App.Placement(Vector(0, 0, 1), App.Rotation())
sketch21.addGeometry([
    Part.Circle(Vector(-15.5, 72, 0), Vector(0, 0, 1), 2),  # 0
    Part.Circle(Vector(-7.8, 85.4, 0), Vector(0, 0, 1), 2),  # 1
    Part.Circle(Vector(7.8, 85.4, 0), Vector(0, 0, 1), 2),  # 2
    Part.Circle(Vector(15.5, 72, 0), Vector(0, 0, 1), 2),  # 3
    Part.Circle(Vector(7.8, 58.6, 0), Vector(0, 0, 1), 2),  # 4
    Part.Circle(Vector(-7.8, 58.6, 0), Vector(0, 0, 1), 2),  # 5
], False)
sketch21.addConstraint([
    Sketcher.Constraint("Equal", 0, 1),
    Sketcher.Constraint("Equal", 1, 2),
    Sketcher.Constraint("Equal", 2, 3),
    Sketcher.Constraint("Equal", 3, 4),
    Sketcher.Constraint("Equal", 4, 5),
    Sketcher.Constraint("Symmetric", 1, 3, 2, 3, -2),
    Sketcher.Constraint("Symmetric", 0, 3, 3, 3, -2),
    Sketcher.Constraint("Symmetric", 4, 3, 5, 3, -2),
    Sketcher.Constraint("Vertical", 2, 3, 4, 3),
    Sketcher.Constraint("Diameter", 0, Q("4 mm")),
    Sketcher.Constraint("DistanceX", 0, 3, -1, 1, Q("15.5 mm")),
    Sketcher.Constraint("DistanceX", 1, 3, 2, 3, Q("15.5 mm")),
    Sketcher.Constraint("DistanceY", -1, 1, 0, 3, Q("72 mm")),
    Sketcher.Constraint("DistanceY", -1, 1, 1, 3, Q("85.4234 mm")),
    Sketcher.Constraint("DistanceY", -1, 1, 4, 3, Q("58.5766 mm")),
])
pocket12 = doc.addObject("PartDesign::Pocket", "Pocket011")
body.addObject(pocket12)
pocket12.Profile = sketch21
pocket12.Length = 10
pocket12.Reversed = True

# Sketch on XY plane
sketch22 = doc.addObject("Sketcher::SketchObject", "Sketch021")
body.addObject(sketch22)
sketch22.AttachmentSupport = (doc.XY_Plane, [""])
sketch22.MapMode = "FlatFace"
sketch22.AttachmentOffset = App.Placement(Vector(0, 0, 10), App.Rotation())
sketch22.addGeometry([
    Part.Circle(Vector(-7.8, 85.4, 0), Vector(0, 0, 1), 3.5),  # 0
    Part.Circle(Vector(7.8, 85.4, 0), Vector(0, 0, 1), 3.5),  # 1
    Part.Circle(Vector(15.5, 72, 0), Vector(0, 0, 1), 3.5),  # 2
    Part.Circle(Vector(7.8, 58.6, 0), Vector(0, 0, 1), 3.5),  # 3
    Part.Circle(Vector(-7.8, 58.6, 0), Vector(0, 0, 1), 3.5),  # 4
    Part.Circle(Vector(-15.5, 72, 0), Vector(0, 0, 1), 3.5),  # 5
], False)
sketch22.addConstraint([
    Sketcher.Constraint("Equal", 0, 1),
    Sketcher.Constraint("Equal", 1, 2),
    Sketcher.Constraint("Equal", 2, 3),
    Sketcher.Constraint("Equal", 3, 4),
    Sketcher.Constraint("Equal", 4, 5),
    Sketcher.Constraint("Symmetric", 0, 3, 1, 3, -2),
    Sketcher.Constraint("Symmetric", 3, 3, 4, 3, -2),
    Sketcher.Constraint("Symmetric", 2, 3, 5, 3, -2),
    Sketcher.Constraint("Vertical", 1, 3, 3, 3),
    Sketcher.Constraint("Diameter", 0, Q("7 mm")),
    Sketcher.Constraint("DistanceY", -1, 1, 2, 3, Q("72 mm")),
    Sketcher.Constraint("DistanceX", 5, 3, 2, 3, Q("31 mm")),
    Sketcher.Constraint("DistanceX", 0, 3, 1, 3, Q("15.5 mm")),
    Sketcher.Constraint("DistanceY", -1, 1, 0, 3, Q("85.4234 mm")),
    Sketcher.Constraint("DistanceY", -1, 1, 3, 3, Q("58.5766 mm")),
])
pocket13 = doc.addObject("PartDesign::Pocket", "Pocket012")
body.addObject(pocket13)
pocket13.Profile = sketch22
pocket13.Length = 3

doc.recompute()
